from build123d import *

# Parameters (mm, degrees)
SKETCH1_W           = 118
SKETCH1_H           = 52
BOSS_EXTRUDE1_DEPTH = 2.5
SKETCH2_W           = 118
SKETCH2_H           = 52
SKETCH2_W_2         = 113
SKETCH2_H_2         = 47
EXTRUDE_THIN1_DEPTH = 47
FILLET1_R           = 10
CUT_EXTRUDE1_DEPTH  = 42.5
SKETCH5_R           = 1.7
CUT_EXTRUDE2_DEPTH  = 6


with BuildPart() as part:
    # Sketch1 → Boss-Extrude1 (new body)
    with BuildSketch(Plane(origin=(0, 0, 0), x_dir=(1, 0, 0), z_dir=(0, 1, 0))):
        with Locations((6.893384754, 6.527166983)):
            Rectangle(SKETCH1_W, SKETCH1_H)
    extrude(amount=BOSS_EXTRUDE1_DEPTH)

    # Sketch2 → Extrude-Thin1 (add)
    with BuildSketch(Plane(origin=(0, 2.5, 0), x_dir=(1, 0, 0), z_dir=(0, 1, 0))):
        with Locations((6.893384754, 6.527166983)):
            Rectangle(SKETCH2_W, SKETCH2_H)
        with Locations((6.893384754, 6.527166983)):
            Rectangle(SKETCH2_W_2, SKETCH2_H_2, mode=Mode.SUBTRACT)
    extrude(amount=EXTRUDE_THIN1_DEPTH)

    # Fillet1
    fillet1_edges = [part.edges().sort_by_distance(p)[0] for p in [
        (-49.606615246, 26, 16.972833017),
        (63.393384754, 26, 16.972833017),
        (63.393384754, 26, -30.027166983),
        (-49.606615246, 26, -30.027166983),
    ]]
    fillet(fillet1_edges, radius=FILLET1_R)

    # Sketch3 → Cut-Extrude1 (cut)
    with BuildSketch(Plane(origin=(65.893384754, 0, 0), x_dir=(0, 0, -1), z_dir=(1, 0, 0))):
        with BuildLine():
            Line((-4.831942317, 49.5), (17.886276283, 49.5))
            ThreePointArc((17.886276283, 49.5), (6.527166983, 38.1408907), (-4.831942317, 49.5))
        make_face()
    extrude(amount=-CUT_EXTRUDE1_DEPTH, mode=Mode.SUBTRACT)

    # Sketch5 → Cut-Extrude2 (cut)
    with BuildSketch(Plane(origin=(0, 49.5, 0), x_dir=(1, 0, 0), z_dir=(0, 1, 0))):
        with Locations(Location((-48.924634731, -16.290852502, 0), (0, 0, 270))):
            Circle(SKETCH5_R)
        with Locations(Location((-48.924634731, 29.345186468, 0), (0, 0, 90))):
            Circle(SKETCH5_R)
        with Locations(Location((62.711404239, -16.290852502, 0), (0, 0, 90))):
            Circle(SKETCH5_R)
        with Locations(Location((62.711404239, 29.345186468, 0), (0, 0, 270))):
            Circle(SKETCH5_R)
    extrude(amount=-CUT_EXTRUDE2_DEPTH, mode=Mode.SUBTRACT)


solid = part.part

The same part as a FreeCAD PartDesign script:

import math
import FreeCAD as App
import Part
import Sketcher

V = App.Vector


def edges_at(feature, points):
    """Names of the edges that pass closest to the given points."""
    edges = feature.Shape.Edges
    near = lambda p: min(range(len(edges)), key=lambda i: edges[i].distToShape(Part.Vertex(*p))[0])
    return sorted({f"Edge{near(p) + 1}" for p in points})


def add_polygon(sketch, points):
    """Adds a closed chain of lines whose ends are joined by coincident constraints."""
    first, n = sketch.GeometryCount, len(points)
    for a, b in zip(points, points[1:] + points[:1]):
        sketch.addGeometry(Part.LineSegment(App.Vector(*a, 0), App.Vector(*b, 0)), False)
    for i in range(n):
        sketch.addConstraint(Sketcher.Constraint("Coincident", first + i, 2, first + (i + 1) % n, 1))

doc = App.newDocument("Part")
params = doc.addObject("Spreadsheet::Sheet", "Params")
for row, (alias, value) in enumerate([
    ("sketch1_width", "118 mm"),
    ("sketch1_height", "52 mm"),
    ("pad1_length", "2.5 mm"),
    ("sketch2_width", "118 mm"),
    ("sketch2_width2", "113 mm"),
    ("sketch2_height", "52 mm"),
    ("sketch2_height2", "47 mm"),
    ("pad2_length", "47 mm"),
    ("fillet_radius", "10 mm"),
    ("pocket1_length", "42.5 mm"),
    ("sketch4_diameter", "3.4 mm"),
    ("pocket2_length", "6 mm"),
], start=1):
    params.set(f"A{row}", alias)
    params.set(f"B{row}", "=" + value)
    params.setAlias(f"B{row}", alias)

body = doc.addObject("PartDesign::Body", "Body")

# Sketch on XZ plane
sketch1 = doc.addObject("Sketcher::SketchObject", "Sketch")
body.addObject(sketch1)
sketch1.AttachmentSupport = (doc.XZ_Plane, [""])
sketch1.MapMode = "FlatFace"
add_polygon(sketch1, [(-52, -33), (-52, 19), (66, 19), (66, -33)])  # lines 0-3
sketch1.addConstraint(Sketcher.Constraint("Vertical", 0))
sketch1.addConstraint(Sketcher.Constraint("Horizontal", 1))
sketch1.addConstraint(Sketcher.Constraint("Vertical", 2))
sketch1.addConstraint(Sketcher.Constraint("Horizontal", 3))
sketch1.addConstraint(Sketcher.Constraint("DistanceX", 1, 1, 1, 2, 118.0))
sketch1.addConstraint(Sketcher.Constraint("DistanceY", 0, 1, 0, 2, 52.0))
sketch1.addConstraint(Sketcher.Constraint("DistanceX", 0, 2, -1, 1, 52.106615))
sketch1.addConstraint(Sketcher.Constraint("DistanceY", -1, 1, 0, 2, 19.472833))
sketch1.setExpression("Constraints[8]", "Params.sketch1_width")
sketch1.setExpression("Constraints[9]", "Params.sketch1_height")
pad1 = doc.addObject("PartDesign::Pad", "Pad")
body.addObject(pad1)
pad1.Profile = sketch1
pad1.setExpression("Length", "Params.pad1_length")
pad1.Reversed = True

# Sketch on XZ plane
sketch2 = doc.addObject("Sketcher::SketchObject", "Sketch001")
body.addObject(sketch2)
sketch2.AttachmentSupport = (doc.XZ_Plane, [""])
sketch2.MapMode = "FlatFace"
sketch2.AttachmentOffset = App.Placement(V(0, 0, -2.5), App.Rotation())
add_polygon(sketch2, [(-52, -33), (-52, 19), (66, 19), (66, -33)])  # lines 0-3
add_polygon(sketch2, [(63, 17), (-50, 17), (-50, -30), (63, -30)])  # lines 4-7
sketch2.addConstraint(Sketcher.Constraint("Vertical", 0))
sketch2.addConstraint(Sketcher.Constraint("Horizontal", 1))
sketch2.addConstraint(Sketcher.Constraint("Vertical", 2))
sketch2.addConstraint(Sketcher.Constraint("Horizontal", 3))
sketch2.addConstraint(Sketcher.Constraint("Horizontal", 4))
sketch2.addConstraint(Sketcher.Constraint("Vertical", 5))
sketch2.addConstraint(Sketcher.Constraint("Horizontal", 6))
sketch2.addConstraint(Sketcher.Constraint("Vertical", 7))
sketch2.addConstraint(Sketcher.Constraint("DistanceX", 1, 1, 1, 2, 118.0))
sketch2.addConstraint(Sketcher.Constraint("DistanceX", 4, 2, 4, 1, 113.0))
sketch2.addConstraint(Sketcher.Constraint("DistanceY", 0, 1, 0, 2, 52.0))
sketch2.addConstraint(Sketcher.Constraint("DistanceY", 5, 2, 5, 1, 47.0))
sketch2.addConstraint(Sketcher.Constraint("DistanceX", 0, 2, 4, 2, 2.5))
sketch2.addConstraint(Sketcher.Constraint("DistanceY", 4, 2, 0, 2, 2.5))
sketch2.addConstraint(Sketcher.Constraint("DistanceX", 0, 2, -1, 1, 52.106615))
sketch2.addConstraint(Sketcher.Constraint("DistanceY", -1, 1, 0, 2, 19.472833))
sketch2.setExpression("Constraints[16]", "Params.sketch2_width")
sketch2.setExpression("Constraints[17]", "Params.sketch2_width2")
sketch2.setExpression("Constraints[18]", "Params.sketch2_height")
sketch2.setExpression("Constraints[19]", "Params.sketch2_height2")
pad2 = doc.addObject("PartDesign::Pad", "Pad001")
body.addObject(pad2)
pad2.Profile = sketch2
pad2.setExpression("Length", "Params.pad2_length")
pad2.Reversed = True
doc.recompute()

fillet = doc.addObject("PartDesign::Fillet", "Fillet")
body.addObject(fillet)
fillet.Base = (pad2, edges_at(pad2, [
    (-49.607, 26, 16.973),
    (63.393, 26, 16.973),
    (63.393, 26, -30.027),
    (-49.607, 26, -30.027),
]))
fillet.setExpression("Radius", "Params.fillet_radius")

# Sketch on YZ plane
sketch3 = doc.addObject("Sketcher::SketchObject", "Sketch002")
body.addObject(sketch3)
sketch3.AttachmentSupport = (doc.YZ_Plane, [""])
sketch3.MapMode = "FlatFace"
sketch3.AttachmentOffset = App.Placement(V(0, 0, 65.893385), App.Rotation())
sketch3.addGeometry(Part.LineSegment(V(50, -18, 0), V(50, 5, 0)), False)
sketch3.addGeometry(Part.ArcOfCircle(Part.Circle(V(50, -7, 0), V(0, 0, 1), 11), math.radians(90), math.radians(270)), False)
sketch3.addConstraint(Sketcher.Constraint("Coincident", 0, 1, 1, 2))
sketch3.addConstraint(Sketcher.Constraint("Coincident", 1, 1, 0, 2))
sketch3.addConstraint(Sketcher.Constraint("Vertical", 0))
sketch3.addConstraint(Sketcher.Constraint("Vertical", 1, 3, 0, 1))
sketch3.addConstraint(Sketcher.Constraint("DistanceX", -1, 1, 1, 3, 49.5))
sketch3.addConstraint(Sketcher.Constraint("Radius", 1, 11.359109))
sketch3.addConstraint(Sketcher.Constraint("DistanceY", 1, 3, -1, 1, 6.527167))
pocket1 = doc.addObject("PartDesign::Pocket", "Pocket")
body.addObject(pocket1)
pocket1.Profile = sketch3
pocket1.setExpression("Length", "Params.pocket1_length")

# Sketch on XZ plane
sketch4 = doc.addObject("Sketcher::SketchObject", "Sketch003")
body.addObject(sketch4)
sketch4.AttachmentSupport = (doc.XZ_Plane, [""])
sketch4.MapMode = "FlatFace"
sketch4.AttachmentOffset = App.Placement(V(0, 0, -49.5), App.Rotation())
sketch4.addGeometry(Part.Circle(V(-48.9, 16.3, 0), V(0, 0, 1), 1.7), False)
sketch4.addGeometry(Part.Circle(V(-48.9, -29.3, 0), V(0, 0, 1), 1.7), False)
sketch4.addGeometry(Part.Circle(V(62.7, 16.3, 0), V(0, 0, 1), 1.7), False)
sketch4.addGeometry(Part.Circle(V(62.7, -29.3, 0), V(0, 0, 1), 1.7), False)
sketch4.addConstraint(Sketcher.Constraint("Equal", 0, 1))
sketch4.addConstraint(Sketcher.Constraint("Equal", 1, 2))
sketch4.addConstraint(Sketcher.Constraint("Equal", 2, 3))
sketch4.addConstraint(Sketcher.Constraint("Horizontal", 0, 3, 2, 3))
sketch4.addConstraint(Sketcher.Constraint("Horizontal", 1, 3, 3, 3))
sketch4.addConstraint(Sketcher.Constraint("Vertical", 0, 3, 1, 3))
sketch4.addConstraint(Sketcher.Constraint("Vertical", 2, 3, 3, 3))
sketch4.addConstraint(Sketcher.Constraint("Diameter", 0, 3.4))
sketch4.addConstraint(Sketcher.Constraint("DistanceY", 1, 3, 0, 3, 45.636039))
sketch4.addConstraint(Sketcher.Constraint("DistanceX", 0, 3, 2, 3, 111.636039))
sketch4.addConstraint(Sketcher.Constraint("DistanceX", 0, 3, -1, 1, 48.924635))
sketch4.addConstraint(Sketcher.Constraint("DistanceY", -1, 1, 0, 3, 16.290853))
sketch4.setExpression("Constraints[7]", "Params.sketch4_diameter")
pocket2 = doc.addObject("PartDesign::Pocket", "Pocket001")
body.addObject(pocket2)
pocket2.Profile = sketch4
pocket2.setExpression("Length", "Params.pocket2_length")
pocket2.Reversed = True

doc.recompute()
